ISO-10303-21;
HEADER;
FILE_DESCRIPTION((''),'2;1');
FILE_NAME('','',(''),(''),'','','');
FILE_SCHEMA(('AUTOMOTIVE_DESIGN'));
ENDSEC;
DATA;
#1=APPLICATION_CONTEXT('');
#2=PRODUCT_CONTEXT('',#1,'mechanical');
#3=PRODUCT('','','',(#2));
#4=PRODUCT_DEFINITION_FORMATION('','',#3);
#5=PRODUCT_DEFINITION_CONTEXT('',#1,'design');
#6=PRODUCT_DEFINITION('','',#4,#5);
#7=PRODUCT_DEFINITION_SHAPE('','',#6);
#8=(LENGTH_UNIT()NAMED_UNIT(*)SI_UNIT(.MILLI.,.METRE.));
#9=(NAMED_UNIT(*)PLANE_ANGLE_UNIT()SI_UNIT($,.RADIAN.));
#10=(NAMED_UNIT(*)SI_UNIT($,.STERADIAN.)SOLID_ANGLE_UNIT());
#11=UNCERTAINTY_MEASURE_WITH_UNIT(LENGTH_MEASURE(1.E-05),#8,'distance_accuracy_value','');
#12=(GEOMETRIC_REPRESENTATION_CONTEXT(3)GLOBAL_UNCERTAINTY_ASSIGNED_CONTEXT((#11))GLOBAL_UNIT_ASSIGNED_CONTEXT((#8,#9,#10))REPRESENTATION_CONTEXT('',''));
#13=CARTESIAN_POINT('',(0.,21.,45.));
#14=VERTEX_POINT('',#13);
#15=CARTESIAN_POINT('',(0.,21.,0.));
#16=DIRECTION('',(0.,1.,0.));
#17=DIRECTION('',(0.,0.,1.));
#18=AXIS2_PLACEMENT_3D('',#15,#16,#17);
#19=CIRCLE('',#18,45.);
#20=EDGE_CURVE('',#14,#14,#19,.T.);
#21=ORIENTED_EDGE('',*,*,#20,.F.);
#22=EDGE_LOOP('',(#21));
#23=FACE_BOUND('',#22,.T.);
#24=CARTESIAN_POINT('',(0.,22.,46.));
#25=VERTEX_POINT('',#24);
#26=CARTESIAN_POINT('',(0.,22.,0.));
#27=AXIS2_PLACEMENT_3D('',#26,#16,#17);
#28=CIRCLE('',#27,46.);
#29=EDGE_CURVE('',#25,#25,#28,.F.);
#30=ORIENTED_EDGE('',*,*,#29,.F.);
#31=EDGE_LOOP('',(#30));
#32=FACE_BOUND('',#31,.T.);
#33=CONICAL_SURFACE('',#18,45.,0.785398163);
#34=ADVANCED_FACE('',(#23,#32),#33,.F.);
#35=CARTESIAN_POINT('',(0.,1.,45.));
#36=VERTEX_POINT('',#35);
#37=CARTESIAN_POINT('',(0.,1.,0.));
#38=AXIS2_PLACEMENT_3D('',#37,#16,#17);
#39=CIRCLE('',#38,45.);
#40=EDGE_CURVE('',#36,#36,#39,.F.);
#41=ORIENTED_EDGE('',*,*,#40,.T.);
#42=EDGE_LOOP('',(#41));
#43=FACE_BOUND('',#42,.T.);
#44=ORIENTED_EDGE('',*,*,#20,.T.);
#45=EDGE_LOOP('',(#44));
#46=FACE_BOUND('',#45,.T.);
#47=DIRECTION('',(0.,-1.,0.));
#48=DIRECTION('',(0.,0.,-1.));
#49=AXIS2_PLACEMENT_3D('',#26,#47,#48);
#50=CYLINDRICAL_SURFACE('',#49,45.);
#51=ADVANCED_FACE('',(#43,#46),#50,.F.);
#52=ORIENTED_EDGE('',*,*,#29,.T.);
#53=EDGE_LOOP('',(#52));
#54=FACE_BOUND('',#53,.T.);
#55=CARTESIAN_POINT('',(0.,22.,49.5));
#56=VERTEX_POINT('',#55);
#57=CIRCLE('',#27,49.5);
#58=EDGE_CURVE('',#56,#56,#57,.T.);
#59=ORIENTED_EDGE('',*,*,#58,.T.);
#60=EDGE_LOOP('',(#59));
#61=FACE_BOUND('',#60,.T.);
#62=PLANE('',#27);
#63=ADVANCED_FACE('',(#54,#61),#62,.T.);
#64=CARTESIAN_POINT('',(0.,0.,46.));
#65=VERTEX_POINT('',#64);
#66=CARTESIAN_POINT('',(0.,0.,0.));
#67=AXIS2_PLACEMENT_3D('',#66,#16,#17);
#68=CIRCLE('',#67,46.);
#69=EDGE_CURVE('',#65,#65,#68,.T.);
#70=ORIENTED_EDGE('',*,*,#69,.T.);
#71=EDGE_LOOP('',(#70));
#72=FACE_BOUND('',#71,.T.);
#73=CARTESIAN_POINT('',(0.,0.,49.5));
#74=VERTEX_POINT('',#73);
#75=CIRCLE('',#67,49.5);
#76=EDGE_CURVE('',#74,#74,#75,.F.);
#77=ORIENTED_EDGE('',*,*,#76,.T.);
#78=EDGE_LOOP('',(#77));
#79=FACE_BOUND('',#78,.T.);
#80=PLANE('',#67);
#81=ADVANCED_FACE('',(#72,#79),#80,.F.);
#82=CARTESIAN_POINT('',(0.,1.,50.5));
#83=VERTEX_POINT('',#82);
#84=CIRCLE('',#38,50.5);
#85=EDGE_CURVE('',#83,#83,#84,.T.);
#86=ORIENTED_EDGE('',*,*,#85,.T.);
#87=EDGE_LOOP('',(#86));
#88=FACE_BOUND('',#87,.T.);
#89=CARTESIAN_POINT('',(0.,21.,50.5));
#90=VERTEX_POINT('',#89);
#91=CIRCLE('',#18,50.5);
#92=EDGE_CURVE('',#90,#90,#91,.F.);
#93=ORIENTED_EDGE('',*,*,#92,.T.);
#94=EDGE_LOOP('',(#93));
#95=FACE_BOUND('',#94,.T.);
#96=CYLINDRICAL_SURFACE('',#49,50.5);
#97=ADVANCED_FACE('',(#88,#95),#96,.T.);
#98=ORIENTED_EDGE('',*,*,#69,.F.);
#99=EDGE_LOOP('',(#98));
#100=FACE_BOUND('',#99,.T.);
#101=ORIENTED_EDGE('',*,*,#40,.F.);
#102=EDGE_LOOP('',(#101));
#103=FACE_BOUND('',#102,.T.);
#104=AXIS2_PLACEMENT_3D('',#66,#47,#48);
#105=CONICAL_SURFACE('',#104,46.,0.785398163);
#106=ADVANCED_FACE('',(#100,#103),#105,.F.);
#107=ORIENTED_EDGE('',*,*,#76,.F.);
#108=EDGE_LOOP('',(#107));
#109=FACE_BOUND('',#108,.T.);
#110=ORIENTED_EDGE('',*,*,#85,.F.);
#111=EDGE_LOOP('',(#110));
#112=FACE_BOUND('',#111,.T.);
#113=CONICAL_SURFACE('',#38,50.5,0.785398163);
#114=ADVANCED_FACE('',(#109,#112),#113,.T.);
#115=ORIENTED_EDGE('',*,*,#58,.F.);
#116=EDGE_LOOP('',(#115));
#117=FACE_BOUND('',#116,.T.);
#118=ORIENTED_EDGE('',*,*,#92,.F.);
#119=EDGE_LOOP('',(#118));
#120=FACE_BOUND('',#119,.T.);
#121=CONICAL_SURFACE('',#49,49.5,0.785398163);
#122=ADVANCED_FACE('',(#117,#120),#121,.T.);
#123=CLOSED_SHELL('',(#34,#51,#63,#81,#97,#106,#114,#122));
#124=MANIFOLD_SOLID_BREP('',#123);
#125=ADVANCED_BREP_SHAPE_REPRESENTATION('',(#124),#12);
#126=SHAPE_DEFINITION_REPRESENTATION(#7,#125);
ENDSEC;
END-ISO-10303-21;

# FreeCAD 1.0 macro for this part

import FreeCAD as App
import Part
import Sketcher

V = App.Vector
Q = App.Units.Quantity


def edges_at(feature, points):
    """Names of the edges that pass closest to the given points."""
    edges = feature.Shape.Edges
    near = lambda p: min(range(len(edges)), key=lambda i: edges[i].distToShape(Part.Vertex(*p))[0])
    return sorted({f"Edge{near(p) + 1}" for p in points})

doc = App.newDocument("Part")
body = doc.addObject("PartDesign::Body", "Body")

# Sketch on XZ plane
sketch1 = body.newObject("Sketcher::SketchObject", "Sketch")
sketch1.AttachmentSupport = (doc.getObject("XZ_Plane"), [""])
sketch1.MapMode = "FlatFace"
sketch1.addGeometry(Part.Circle(V(0, 0, 0), V(0, 0, 1), 50), False)
sketch1.addGeometry(Part.Circle(V(0, 0, 0), V(0, 0, 1), 45), False)
sketch1.addConstraint(Sketcher.Constraint("Coincident", 0, 3, -1, 1))
sketch1.addConstraint(Sketcher.Constraint("Coincident", 1, 3, -1, 1))
sketch1.addConstraint(Sketcher.Constraint("Diameter", 0, Q("101 mm")))
sketch1.addConstraint(Sketcher.Constraint("Diameter", 1, Q("90 mm")))
pad1 = body.newObject("PartDesign::Pad", "Pad")
pad1.Profile = sketch1
pad1.Length = 22
pad1.Reversed = True
doc.recompute()

chamfer = body.newObject("PartDesign::Chamfer", "Chamfer")
chamfer.Base = (pad1, edges_at(pad1, [
    (0, 0, -50.5),
    (0, 22, -50.5),
    (0, 0, -45),
    (0, 22, -45),
]))
chamfer.Size = 1

doc.recompute()
